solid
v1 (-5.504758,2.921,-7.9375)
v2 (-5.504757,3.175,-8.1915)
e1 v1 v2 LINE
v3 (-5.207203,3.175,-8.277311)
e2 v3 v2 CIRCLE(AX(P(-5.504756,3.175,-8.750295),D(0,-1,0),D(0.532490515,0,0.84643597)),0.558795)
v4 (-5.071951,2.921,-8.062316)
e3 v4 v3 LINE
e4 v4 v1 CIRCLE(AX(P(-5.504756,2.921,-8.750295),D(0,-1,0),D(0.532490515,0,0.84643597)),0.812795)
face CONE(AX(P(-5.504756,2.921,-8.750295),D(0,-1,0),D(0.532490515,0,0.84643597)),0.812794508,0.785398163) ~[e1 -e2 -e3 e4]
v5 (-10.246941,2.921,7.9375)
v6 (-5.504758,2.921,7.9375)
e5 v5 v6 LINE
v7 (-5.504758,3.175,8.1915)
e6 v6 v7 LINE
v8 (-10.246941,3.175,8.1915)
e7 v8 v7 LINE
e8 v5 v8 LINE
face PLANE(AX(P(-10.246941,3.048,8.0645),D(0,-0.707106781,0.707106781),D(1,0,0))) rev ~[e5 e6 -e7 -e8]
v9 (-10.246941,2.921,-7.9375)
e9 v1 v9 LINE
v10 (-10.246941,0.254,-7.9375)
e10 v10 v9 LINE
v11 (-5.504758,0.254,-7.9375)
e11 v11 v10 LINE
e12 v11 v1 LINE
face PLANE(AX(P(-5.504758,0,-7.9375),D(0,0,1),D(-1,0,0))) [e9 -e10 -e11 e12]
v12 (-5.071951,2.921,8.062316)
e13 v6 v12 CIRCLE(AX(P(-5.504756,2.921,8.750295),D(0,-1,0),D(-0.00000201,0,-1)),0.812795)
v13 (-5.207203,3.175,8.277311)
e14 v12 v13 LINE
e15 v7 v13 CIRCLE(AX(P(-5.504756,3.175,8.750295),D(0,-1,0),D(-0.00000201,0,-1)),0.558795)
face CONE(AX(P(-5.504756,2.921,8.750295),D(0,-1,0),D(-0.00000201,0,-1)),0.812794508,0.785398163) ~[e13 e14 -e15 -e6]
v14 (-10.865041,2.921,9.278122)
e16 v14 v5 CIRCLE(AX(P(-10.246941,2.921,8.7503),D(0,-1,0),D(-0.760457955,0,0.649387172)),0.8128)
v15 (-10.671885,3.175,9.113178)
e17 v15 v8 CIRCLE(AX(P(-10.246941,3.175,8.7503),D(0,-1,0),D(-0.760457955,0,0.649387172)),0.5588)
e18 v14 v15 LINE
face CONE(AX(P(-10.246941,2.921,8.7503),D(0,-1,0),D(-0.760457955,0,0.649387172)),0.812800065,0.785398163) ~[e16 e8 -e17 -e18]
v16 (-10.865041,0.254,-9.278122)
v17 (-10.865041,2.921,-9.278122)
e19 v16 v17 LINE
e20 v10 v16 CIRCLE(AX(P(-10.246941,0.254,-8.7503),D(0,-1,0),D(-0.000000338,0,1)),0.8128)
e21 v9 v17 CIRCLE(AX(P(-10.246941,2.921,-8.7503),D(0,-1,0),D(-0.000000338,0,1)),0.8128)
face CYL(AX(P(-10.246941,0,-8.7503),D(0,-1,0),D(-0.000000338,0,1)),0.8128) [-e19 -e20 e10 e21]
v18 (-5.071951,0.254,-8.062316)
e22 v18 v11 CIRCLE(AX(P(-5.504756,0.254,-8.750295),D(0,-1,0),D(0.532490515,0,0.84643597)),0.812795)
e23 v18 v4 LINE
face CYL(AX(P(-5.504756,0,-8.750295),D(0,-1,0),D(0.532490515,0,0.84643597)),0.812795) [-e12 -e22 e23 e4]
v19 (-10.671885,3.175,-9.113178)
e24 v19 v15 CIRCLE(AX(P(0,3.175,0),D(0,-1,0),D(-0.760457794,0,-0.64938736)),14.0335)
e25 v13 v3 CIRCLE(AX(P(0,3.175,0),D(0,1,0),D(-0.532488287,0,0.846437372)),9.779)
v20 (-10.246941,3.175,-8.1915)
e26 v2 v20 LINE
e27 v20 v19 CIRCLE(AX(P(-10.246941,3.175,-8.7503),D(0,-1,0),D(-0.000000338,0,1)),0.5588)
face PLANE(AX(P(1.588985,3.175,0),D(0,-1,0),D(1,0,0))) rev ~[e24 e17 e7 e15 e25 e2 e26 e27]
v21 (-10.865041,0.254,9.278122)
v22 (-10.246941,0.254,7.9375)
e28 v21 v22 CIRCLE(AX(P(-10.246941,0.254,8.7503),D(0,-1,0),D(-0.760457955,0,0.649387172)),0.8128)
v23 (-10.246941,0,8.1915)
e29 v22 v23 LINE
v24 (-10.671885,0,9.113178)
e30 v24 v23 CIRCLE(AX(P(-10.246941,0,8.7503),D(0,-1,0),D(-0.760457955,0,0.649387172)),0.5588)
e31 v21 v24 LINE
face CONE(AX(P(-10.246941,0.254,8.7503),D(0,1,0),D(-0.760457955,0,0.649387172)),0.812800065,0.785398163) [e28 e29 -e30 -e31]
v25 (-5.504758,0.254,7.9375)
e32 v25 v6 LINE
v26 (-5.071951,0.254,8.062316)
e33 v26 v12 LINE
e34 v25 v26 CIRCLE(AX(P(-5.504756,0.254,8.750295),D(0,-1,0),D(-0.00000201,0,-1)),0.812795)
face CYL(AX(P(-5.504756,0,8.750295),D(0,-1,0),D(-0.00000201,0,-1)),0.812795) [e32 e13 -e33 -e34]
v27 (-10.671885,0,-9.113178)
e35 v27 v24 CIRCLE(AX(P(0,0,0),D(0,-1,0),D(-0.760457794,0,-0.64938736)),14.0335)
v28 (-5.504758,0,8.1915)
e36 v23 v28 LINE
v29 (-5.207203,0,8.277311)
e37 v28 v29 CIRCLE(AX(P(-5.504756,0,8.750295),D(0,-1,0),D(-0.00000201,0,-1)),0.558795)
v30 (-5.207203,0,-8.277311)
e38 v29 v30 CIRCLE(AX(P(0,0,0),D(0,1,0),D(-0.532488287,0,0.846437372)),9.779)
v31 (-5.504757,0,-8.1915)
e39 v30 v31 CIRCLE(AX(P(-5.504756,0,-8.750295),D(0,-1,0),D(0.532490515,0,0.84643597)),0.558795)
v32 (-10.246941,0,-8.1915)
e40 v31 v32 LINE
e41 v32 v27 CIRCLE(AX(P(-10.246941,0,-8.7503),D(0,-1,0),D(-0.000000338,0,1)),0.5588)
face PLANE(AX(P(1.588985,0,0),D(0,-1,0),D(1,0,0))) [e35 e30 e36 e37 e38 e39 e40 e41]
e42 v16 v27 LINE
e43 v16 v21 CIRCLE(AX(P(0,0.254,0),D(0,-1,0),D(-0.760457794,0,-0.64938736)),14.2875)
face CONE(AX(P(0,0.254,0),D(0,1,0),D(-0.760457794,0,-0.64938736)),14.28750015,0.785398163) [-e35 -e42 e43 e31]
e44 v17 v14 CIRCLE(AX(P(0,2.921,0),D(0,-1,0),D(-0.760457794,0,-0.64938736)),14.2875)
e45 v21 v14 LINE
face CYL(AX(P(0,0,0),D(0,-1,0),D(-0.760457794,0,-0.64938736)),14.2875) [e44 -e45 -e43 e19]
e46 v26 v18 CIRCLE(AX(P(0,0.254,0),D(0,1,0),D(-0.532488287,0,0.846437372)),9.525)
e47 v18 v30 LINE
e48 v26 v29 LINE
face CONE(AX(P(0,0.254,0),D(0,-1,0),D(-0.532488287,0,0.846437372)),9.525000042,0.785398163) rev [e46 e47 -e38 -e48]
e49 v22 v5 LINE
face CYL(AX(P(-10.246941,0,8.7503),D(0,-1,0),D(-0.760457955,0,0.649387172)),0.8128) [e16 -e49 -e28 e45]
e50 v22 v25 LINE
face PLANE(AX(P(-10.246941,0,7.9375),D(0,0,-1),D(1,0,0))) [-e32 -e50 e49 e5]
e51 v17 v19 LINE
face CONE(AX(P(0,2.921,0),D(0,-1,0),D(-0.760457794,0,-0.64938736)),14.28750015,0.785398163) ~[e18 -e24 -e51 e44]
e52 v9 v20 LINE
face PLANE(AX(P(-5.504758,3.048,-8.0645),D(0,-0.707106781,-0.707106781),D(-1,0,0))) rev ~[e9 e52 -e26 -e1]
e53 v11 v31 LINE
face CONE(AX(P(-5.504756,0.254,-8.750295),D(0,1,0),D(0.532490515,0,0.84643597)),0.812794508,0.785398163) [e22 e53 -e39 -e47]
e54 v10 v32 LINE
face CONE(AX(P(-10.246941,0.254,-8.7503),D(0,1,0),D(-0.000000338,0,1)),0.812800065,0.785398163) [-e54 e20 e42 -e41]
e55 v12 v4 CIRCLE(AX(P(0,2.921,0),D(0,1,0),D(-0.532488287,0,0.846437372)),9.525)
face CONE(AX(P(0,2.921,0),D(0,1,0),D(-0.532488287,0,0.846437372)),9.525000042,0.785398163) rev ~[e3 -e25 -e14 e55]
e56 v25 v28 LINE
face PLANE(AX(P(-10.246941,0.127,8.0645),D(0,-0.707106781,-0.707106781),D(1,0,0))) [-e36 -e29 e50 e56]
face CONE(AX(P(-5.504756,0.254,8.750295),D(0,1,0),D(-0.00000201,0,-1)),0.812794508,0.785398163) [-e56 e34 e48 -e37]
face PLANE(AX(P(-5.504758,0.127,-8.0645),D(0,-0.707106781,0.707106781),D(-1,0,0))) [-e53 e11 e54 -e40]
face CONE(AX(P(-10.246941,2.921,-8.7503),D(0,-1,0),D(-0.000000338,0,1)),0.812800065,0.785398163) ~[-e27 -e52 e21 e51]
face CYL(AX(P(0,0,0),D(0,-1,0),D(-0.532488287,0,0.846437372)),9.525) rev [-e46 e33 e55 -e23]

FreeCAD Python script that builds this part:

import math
import FreeCAD as App
import Part
import Sketcher
Q = App.Units.Quantity


def edges_at(feature, points):
    """Names of the edges that pass closest to the given points."""
    edges = feature.Shape.Edges
    near = lambda p: min(range(len(edges)), key=lambda i: edges[i].distToShape(Part.Vertex(*p))[0])
    return sorted({f"Edge{near(p) + 1}" for p in points})

doc = App.newDocument("Part")
params = doc.addObject("Spreadsheet::Sheet", "Params")
for row, (alias, value) in enumerate([
    ("sketch1_radius", "0.032 in"),
    ("sketch1_radius2", "0.5625 in"),
    ("sketch1_radius3", "0.375 in"),
    ("pad1_length", "0.125 in"),
    ("chamfer_size", "0.01 in"),
], start=1):
    params.set(f"A{row}", alias)
    params.set(f"B{row}", "=" + value)
    params.setAlias(f"B{row}", alias)

body = doc.addObject("PartDesign::Body", "Body")

sketch1 = body.newObject("Sketcher::SketchObject", "Sketch")
sketch1.AttachmentSupport = (doc.getObject("XZ_Plane"), [""])
sketch1.MapMode = "FlatFace"
sketch1.addGeometry(Part.ArcOfCircle(Part.Circle(App.Vector(-10.25, -8.75, 0), App.Vector(0, 0, 1), 0.81), math.radians(90), math.radians(220)), False)
sketch1.addGeometry(Part.ArcOfCircle(Part.Circle(App.Vector(0, 0, 0), App.Vector(0, 0, 1), 14.29), math.radians(-140), math.radians(140)), False)
sketch1.addGeometry(Part.ArcOfCircle(Part.Circle(App.Vector(-10.25, 8.75, 0), App.Vector(0, 0, 1), 0.81), math.radians(140), math.radians(270)), False)
sketch1.addGeometry(Part.LineSegment(App.Vector(-10.25, 7.94, 0), App.Vector(-5.5, 7.94, 0)), False)
sketch1.addGeometry(Part.ArcOfCircle(Part.Circle(App.Vector(-5.5, 8.75, 0), App.Vector(0, 0, 1), 0.81), math.radians(-90), math.radians(-58)), False)
sketch1.addGeometry(Part.ArcOfCircle(Part.Circle(App.Vector(0, 0, 0), App.Vector(0, 0, 1), 9.53), math.radians(-122), math.radians(122)), False)
sketch1.addGeometry(Part.ArcOfCircle(Part.Circle(App.Vector(-5.5, -8.75, 0), App.Vector(0, 0, 1), 0.81), math.radians(58), math.radians(90)), False)
sketch1.addGeometry(Part.LineSegment(App.Vector(-5.5, -7.94, 0), App.Vector(-10.25, -7.94, 0)), False)
sketch1.addConstraint(Sketcher.Constraint("Tangent", 0, 2, 1, 1))
sketch1.addConstraint(Sketcher.Constraint("Tangent", 1, 2, 2, 1))
sketch1.addConstraint(Sketcher.Constraint("Tangent", 2, 2, 3, 1))
sketch1.addConstraint(Sketcher.Constraint("Coincident", 3, 2, 4, 1))
sketch1.addConstraint(Sketcher.Constraint("Coincident", 4, 2, 5, 2))
sketch1.addConstraint(Sketcher.Constraint("Coincident", 5, 1, 6, 1))
sketch1.addConstraint(Sketcher.Constraint("Coincident", 6, 2, 7, 1))
sketch1.addConstraint(Sketcher.Constraint("Tangent", 7, 2, 0, 1))
sketch1.addConstraint(Sketcher.Constraint("Horizontal", 3))
sketch1.addConstraint(Sketcher.Constraint("Horizontal", 7))
sketch1.addConstraint(Sketcher.Constraint("Coincident", 1, 3, -1, 1))
sketch1.addConstraint(Sketcher.Constraint("Coincident", 5, 3, -1, 1))
sketch1.addConstraint(Sketcher.Constraint("Equal", 0, 2))
sketch1.addConstraint(Sketcher.Constraint("Equal", 4, 6))
sketch1.addConstraint(Sketcher.Constraint("Symmetric", 3, 2, 6, 2, -1))
sketch1.addConstraint(Sketcher.Constraint("Vertical", 6, 3, 3, 2))
sketch1.addConstraint(Sketcher.Constraint("Vertical", 4, 2, 5, 1))
sketch1.addConstraint(Sketcher.Constraint("Radius", 0, Q("0.032 in")))
sketch1.addConstraint(Sketcher.Constraint("Radius", 1, Q("0.5625 in")))
sketch1.addConstraint(Sketcher.Constraint("Radius", 5, Q("0.375 in")))
sketch1.addConstraint(Sketcher.Constraint("DistanceX", 3, 1, 3, 2, Q("0.1867001 in")))
sketch1.addConstraint(Sketcher.Constraint("DistanceY", -1, 1, 2, 2, Q("0.3125 in")))
sketch1.addConstraint(Sketcher.Constraint("DistanceX", 4, 2, -1, 1, 5.071951))
sketch1.setExpression("Constraints[17]", "Params.sketch1_radius")
sketch1.setExpression("Constraints[18]", "Params.sketch1_radius2")
sketch1.setExpression("Constraints[19]", "Params.sketch1_radius3")
pad1 = body.newObject("PartDesign::Pad", "Pad")
pad1.Profile = sketch1
pad1.setExpression("Length", "Params.pad1_length")
pad1.Reversed = True
doc.recompute()

chamfer = body.newObject("PartDesign::Chamfer", "Chamfer")
chamfer.Base = (pad1, edges_at(pad1, [(9.525, 0, 0), (9.525, 3.175, 0)]))
chamfer.setExpression("Size", "Params.chamfer_size")

doc.recompute()
